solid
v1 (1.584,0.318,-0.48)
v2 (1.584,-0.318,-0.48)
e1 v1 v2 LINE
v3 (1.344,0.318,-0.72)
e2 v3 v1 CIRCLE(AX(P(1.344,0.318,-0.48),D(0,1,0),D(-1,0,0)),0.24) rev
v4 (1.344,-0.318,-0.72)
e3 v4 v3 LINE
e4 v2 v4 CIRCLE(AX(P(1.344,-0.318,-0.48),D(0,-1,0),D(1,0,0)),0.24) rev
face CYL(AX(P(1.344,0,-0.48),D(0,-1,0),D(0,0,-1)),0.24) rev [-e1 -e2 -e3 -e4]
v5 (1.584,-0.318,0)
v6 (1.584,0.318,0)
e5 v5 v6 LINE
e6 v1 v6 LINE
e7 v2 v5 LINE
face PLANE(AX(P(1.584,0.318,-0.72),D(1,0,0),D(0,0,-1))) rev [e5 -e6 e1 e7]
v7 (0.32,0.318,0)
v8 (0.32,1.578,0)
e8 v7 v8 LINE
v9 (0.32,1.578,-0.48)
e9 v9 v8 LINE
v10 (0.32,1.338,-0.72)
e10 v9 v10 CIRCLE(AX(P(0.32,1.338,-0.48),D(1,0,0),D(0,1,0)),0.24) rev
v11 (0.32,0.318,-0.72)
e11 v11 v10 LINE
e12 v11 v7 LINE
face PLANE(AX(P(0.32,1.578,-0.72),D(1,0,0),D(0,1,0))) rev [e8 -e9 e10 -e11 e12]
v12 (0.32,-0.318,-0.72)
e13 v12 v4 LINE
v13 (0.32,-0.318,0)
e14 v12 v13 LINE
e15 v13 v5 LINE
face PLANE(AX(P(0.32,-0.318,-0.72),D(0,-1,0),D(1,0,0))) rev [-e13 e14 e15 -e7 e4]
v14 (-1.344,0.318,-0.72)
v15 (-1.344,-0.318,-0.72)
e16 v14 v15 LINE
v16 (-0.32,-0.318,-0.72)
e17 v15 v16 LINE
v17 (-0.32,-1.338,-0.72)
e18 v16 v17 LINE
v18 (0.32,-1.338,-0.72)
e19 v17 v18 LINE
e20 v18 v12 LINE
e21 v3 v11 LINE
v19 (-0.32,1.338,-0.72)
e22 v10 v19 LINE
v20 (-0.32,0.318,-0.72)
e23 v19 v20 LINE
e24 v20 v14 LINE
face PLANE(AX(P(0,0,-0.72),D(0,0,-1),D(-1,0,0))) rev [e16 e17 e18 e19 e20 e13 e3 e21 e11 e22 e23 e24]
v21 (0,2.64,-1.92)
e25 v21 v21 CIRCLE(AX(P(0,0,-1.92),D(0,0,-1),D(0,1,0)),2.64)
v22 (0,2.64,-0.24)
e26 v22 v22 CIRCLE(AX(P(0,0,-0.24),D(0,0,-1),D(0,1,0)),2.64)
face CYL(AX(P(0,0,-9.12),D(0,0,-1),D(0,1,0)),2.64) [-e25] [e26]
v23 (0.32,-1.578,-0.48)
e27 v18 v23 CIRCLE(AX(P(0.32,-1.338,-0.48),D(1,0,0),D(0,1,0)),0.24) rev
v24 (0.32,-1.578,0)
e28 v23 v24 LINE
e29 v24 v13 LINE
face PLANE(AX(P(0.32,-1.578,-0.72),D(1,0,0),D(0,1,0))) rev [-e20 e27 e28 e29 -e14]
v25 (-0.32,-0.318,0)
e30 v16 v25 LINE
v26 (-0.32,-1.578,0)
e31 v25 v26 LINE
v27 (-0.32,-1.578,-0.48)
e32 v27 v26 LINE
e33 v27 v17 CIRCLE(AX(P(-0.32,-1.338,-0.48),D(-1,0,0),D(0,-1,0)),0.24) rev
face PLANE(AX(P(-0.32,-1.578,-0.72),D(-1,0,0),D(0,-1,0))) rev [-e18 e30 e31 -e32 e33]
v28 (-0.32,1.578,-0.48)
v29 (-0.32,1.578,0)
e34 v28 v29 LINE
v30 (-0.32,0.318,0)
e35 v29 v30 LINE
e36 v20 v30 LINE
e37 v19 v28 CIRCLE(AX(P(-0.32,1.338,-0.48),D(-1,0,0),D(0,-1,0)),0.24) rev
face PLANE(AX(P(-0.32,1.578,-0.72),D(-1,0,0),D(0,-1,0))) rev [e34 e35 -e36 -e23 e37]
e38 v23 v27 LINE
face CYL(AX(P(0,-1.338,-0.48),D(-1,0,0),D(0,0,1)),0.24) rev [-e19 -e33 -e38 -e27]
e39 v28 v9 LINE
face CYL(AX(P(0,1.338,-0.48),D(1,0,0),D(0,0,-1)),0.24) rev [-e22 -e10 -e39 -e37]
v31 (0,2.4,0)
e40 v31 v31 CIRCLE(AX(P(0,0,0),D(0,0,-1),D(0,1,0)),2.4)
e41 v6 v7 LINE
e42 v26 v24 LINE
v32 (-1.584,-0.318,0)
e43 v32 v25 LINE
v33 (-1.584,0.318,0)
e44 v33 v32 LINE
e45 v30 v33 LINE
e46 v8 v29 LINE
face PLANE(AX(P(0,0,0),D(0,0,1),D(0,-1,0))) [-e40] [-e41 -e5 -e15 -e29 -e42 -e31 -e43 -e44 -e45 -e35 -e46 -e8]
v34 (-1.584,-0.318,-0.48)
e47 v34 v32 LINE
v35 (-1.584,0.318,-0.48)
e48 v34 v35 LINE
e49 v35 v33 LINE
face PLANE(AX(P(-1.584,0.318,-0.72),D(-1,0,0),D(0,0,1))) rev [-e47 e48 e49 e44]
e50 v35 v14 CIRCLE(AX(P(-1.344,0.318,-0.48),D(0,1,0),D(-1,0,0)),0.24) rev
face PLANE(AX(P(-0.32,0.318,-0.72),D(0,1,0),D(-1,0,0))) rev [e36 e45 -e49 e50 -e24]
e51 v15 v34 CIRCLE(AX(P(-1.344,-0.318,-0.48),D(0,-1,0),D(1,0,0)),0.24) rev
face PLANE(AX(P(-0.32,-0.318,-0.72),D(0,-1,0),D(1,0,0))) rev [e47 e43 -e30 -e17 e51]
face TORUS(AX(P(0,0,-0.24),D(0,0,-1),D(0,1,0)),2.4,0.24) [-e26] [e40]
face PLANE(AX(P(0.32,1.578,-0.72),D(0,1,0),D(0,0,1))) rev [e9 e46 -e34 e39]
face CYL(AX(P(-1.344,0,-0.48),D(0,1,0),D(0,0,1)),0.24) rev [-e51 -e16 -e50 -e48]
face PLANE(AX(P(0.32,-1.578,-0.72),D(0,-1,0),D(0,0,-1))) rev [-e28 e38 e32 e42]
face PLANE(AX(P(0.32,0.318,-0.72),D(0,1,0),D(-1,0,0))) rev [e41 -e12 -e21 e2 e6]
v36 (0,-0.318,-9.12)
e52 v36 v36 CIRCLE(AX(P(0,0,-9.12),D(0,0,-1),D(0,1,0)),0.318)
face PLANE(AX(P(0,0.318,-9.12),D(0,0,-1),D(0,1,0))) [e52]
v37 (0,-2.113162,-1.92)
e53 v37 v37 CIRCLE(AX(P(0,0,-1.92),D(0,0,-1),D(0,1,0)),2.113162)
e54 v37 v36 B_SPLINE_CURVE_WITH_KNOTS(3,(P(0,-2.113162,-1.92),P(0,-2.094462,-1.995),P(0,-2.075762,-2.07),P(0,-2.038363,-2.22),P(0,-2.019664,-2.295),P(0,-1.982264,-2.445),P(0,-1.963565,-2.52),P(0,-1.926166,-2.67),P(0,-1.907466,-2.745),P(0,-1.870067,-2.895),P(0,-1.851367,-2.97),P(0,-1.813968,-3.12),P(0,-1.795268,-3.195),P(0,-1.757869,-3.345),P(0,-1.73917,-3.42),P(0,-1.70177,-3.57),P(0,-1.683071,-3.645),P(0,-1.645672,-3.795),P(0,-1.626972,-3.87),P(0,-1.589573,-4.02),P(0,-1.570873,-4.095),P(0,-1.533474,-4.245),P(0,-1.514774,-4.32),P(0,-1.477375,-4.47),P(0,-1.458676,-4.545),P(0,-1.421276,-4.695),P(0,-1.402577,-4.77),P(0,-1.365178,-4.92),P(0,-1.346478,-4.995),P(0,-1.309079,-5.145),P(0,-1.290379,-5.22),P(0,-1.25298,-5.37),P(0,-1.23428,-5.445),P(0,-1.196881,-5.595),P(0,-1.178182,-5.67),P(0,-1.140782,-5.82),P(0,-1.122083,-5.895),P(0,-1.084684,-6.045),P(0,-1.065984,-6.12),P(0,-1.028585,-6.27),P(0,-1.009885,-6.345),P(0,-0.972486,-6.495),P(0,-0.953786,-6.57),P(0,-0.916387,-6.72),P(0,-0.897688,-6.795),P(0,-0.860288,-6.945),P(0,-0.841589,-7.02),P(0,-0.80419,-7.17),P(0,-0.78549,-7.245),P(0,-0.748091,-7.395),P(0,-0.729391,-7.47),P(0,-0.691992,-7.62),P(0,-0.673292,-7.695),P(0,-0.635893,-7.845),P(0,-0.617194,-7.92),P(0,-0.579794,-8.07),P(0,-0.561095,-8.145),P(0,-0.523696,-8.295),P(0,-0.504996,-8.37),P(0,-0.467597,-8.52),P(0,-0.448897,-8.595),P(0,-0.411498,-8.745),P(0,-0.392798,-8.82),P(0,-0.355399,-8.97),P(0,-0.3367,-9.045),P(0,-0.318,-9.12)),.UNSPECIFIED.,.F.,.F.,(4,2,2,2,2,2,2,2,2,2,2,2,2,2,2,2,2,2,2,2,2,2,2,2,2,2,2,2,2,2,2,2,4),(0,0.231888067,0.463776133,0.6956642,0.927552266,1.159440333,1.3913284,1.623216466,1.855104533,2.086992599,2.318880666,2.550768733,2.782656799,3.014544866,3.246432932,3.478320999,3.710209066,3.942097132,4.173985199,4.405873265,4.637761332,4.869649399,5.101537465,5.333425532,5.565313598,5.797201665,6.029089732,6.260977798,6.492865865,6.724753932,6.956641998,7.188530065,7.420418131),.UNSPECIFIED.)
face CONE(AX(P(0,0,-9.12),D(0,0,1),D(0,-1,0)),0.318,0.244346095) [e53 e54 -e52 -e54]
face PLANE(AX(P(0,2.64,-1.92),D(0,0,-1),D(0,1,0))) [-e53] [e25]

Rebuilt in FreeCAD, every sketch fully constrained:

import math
import FreeCAD as App
import Part
import Sketcher
from FreeCAD import Vector
Q = App.Units.Quantity


def edges_at(feature, points):
    """Names of the edges that pass closest to the given points."""
    edges = feature.Shape.Edges
    near = lambda p: min(range(len(edges)), key=lambda i: edges[i].distToShape(Part.Vertex(*p))[0])
    return sorted({f"Edge{near(p) + 1}" for p in points})


def add_polygon(sketch, points):
    """Adds a closed chain of lines whose ends are joined by coincident constraints."""
    first, n = sketch.GeometryCount, len(points)
    for a, b in zip(points, points[1:] + points[:1]):
        sketch.addGeometry(Part.LineSegment(App.Vector(*a, 0), App.Vector(*b, 0)), False)
    for i in range(n):
        sketch.addConstraint(Sketcher.Constraint("Coincident", first + i, 2, first + (i + 1) % n, 1))

doc = App.newDocument("Part")
body = doc.addObject("PartDesign::Body", "Body")

sketch1 = body.newObject("Sketcher::SketchObject", "Sketch")
sketch1.AttachmentSupport = (doc.getObject("YZ_Plane"), [""])
sketch1.MapMode = "FlatFace"
sketch1.addGeometry([
    Part.LineSegment(Vector(0, 0, 0), Vector(0, -9.12, 0)),
    Part.LineSegment(Vector(0, -9.12, 0), Vector(0.32, -9.12, 0)),
    Part.LineSegment(Vector(0.32, -9.12, 0), Vector(2.11, -1.92, 0)),
    Part.LineSegment(Vector(2.11, -1.92, 0), Vector(2.64, -1.92, 0)),
    Part.LineSegment(Vector(2.64, -1.92, 0), Vector(2.64, -0.24, 0)),
    Part.ArcOfCircle(Part.Circle(Vector(2.4, -0.24, 0), Vector(0, 0, 1), 0.24), math.radians(0), math.radians(90)),
    Part.LineSegment(Vector(2.4, 0, 0), Vector(0, 0, 0)),
], False)
sketch1.addConstraint([
    Sketcher.Constraint("Coincident", 0, 2, 1, 1),
    Sketcher.Constraint("Coincident", 1, 2, 2, 1),
    Sketcher.Constraint("Coincident", 2, 2, 3, 1),
    Sketcher.Constraint("Coincident", 3, 2, 4, 1),
    Sketcher.Constraint("Tangent", 4, 2, 5, 1),
    Sketcher.Constraint("Tangent", 5, 2, 6, 1),
    Sketcher.Constraint("Coincident", 6, 2, 0, 1),
    Sketcher.Constraint("Vertical", 0),
    Sketcher.Constraint("Horizontal", 1),
    Sketcher.Constraint("Horizontal", 3),
    Sketcher.Constraint("Vertical", 4),
    Sketcher.Constraint("Horizontal", 6),
    Sketcher.Constraint("Coincident", 6, 2, -1, 1),
    Sketcher.Constraint("Angle", 2, Q("76 deg")),
    Sketcher.Constraint("Radius", 5, Q("0.24 mm")),
    Sketcher.Constraint("DistanceX", 6, 2, 6, 1, Q("2.4 mm")),
    Sketcher.Constraint("DistanceY", 0, 2, 0, 1, Q("9.12 mm")),
    Sketcher.Constraint("DistanceY", 4, 1, 4, 2, Q("1.68 mm")),
    Sketcher.Constraint("DistanceX", 1, 1, 1, 2, Q("0.318 mm")),
])
revolution = body.newObject("PartDesign::Revolution", "Revolution")
revolution.Profile = sketch1
revolution.ReferenceAxis = (sketch1, ["V_Axis"])
revolution.Angle = 360

sketch2 = body.newObject("Sketcher::SketchObject", "Sketch001")
sketch2.AttachmentSupport = (doc.getObject("XY_Plane"), [""])
sketch2.MapMode = "FlatFace"
add_polygon(sketch2, [(0.3, 1.6), (-0.3, 1.6), (-0.3, 0.3), (-1.6, 0.3), (-1.6, -0.3), (-0.3, -0.3), (-0.3, -1.6), (0.3, -1.6), (0.3, -0.3), (1.6, -0.3), (1.6, 0.3), (0.3, 0.3)])
sketch2.addConstraint([
    Sketcher.Constraint("Horizontal", 0),
    Sketcher.Constraint("Vertical", 1),
    Sketcher.Constraint("Horizontal", 2),
    Sketcher.Constraint("Vertical", 3),
    Sketcher.Constraint("Horizontal", 4),
    Sketcher.Constraint("Vertical", 5),
    Sketcher.Constraint("Horizontal", 6),
    Sketcher.Constraint("Vertical", 7),
    Sketcher.Constraint("Horizontal", 8),
    Sketcher.Constraint("Vertical", 9),
    Sketcher.Constraint("Horizontal", 10),
    Sketcher.Constraint("Vertical", 11),
    Sketcher.Constraint("Symmetric", 0, 2, 6, 2, -1, 1),
    Sketcher.Constraint("Symmetric", 2, 2, 8, 2, -1, 1),
    Sketcher.Constraint("Symmetric", 4, 2, 10, 2, -1, 1),
    Sketcher.Constraint("Symmetric", 4, 2, 7, 2, -2),
    Sketcher.Constraint("DistanceX", 0, 2, 0, 1, Q("0.64 mm")),
    Sketcher.Constraint("DistanceY", 1, 2, 1, 1, Q("1.26 mm")),
    Sketcher.Constraint("DistanceX", 2, 2, 2, 1, Q("1.264 mm")),
    Sketcher.Constraint("DistanceY", 3, 2, 3, 1, Q("0.636 mm")),
])
pocket1 = body.newObject("PartDesign::Pocket", "Pocket")
pocket1.Profile = sketch2
pocket1.Length = 0.72
doc.recompute()

fillet = body.newObject("PartDesign::Fillet", "Fillet")
fillet.Base = (pocket1, edges_at(pocket1, [
    (0, -1.578, -0.72),
    (-1.584, 0, -0.72),
    (0, 1.578, -0.72),
    (1.584, 0, -0.72),
]))
fillet.Radius = 0.24

doc.recompute()
